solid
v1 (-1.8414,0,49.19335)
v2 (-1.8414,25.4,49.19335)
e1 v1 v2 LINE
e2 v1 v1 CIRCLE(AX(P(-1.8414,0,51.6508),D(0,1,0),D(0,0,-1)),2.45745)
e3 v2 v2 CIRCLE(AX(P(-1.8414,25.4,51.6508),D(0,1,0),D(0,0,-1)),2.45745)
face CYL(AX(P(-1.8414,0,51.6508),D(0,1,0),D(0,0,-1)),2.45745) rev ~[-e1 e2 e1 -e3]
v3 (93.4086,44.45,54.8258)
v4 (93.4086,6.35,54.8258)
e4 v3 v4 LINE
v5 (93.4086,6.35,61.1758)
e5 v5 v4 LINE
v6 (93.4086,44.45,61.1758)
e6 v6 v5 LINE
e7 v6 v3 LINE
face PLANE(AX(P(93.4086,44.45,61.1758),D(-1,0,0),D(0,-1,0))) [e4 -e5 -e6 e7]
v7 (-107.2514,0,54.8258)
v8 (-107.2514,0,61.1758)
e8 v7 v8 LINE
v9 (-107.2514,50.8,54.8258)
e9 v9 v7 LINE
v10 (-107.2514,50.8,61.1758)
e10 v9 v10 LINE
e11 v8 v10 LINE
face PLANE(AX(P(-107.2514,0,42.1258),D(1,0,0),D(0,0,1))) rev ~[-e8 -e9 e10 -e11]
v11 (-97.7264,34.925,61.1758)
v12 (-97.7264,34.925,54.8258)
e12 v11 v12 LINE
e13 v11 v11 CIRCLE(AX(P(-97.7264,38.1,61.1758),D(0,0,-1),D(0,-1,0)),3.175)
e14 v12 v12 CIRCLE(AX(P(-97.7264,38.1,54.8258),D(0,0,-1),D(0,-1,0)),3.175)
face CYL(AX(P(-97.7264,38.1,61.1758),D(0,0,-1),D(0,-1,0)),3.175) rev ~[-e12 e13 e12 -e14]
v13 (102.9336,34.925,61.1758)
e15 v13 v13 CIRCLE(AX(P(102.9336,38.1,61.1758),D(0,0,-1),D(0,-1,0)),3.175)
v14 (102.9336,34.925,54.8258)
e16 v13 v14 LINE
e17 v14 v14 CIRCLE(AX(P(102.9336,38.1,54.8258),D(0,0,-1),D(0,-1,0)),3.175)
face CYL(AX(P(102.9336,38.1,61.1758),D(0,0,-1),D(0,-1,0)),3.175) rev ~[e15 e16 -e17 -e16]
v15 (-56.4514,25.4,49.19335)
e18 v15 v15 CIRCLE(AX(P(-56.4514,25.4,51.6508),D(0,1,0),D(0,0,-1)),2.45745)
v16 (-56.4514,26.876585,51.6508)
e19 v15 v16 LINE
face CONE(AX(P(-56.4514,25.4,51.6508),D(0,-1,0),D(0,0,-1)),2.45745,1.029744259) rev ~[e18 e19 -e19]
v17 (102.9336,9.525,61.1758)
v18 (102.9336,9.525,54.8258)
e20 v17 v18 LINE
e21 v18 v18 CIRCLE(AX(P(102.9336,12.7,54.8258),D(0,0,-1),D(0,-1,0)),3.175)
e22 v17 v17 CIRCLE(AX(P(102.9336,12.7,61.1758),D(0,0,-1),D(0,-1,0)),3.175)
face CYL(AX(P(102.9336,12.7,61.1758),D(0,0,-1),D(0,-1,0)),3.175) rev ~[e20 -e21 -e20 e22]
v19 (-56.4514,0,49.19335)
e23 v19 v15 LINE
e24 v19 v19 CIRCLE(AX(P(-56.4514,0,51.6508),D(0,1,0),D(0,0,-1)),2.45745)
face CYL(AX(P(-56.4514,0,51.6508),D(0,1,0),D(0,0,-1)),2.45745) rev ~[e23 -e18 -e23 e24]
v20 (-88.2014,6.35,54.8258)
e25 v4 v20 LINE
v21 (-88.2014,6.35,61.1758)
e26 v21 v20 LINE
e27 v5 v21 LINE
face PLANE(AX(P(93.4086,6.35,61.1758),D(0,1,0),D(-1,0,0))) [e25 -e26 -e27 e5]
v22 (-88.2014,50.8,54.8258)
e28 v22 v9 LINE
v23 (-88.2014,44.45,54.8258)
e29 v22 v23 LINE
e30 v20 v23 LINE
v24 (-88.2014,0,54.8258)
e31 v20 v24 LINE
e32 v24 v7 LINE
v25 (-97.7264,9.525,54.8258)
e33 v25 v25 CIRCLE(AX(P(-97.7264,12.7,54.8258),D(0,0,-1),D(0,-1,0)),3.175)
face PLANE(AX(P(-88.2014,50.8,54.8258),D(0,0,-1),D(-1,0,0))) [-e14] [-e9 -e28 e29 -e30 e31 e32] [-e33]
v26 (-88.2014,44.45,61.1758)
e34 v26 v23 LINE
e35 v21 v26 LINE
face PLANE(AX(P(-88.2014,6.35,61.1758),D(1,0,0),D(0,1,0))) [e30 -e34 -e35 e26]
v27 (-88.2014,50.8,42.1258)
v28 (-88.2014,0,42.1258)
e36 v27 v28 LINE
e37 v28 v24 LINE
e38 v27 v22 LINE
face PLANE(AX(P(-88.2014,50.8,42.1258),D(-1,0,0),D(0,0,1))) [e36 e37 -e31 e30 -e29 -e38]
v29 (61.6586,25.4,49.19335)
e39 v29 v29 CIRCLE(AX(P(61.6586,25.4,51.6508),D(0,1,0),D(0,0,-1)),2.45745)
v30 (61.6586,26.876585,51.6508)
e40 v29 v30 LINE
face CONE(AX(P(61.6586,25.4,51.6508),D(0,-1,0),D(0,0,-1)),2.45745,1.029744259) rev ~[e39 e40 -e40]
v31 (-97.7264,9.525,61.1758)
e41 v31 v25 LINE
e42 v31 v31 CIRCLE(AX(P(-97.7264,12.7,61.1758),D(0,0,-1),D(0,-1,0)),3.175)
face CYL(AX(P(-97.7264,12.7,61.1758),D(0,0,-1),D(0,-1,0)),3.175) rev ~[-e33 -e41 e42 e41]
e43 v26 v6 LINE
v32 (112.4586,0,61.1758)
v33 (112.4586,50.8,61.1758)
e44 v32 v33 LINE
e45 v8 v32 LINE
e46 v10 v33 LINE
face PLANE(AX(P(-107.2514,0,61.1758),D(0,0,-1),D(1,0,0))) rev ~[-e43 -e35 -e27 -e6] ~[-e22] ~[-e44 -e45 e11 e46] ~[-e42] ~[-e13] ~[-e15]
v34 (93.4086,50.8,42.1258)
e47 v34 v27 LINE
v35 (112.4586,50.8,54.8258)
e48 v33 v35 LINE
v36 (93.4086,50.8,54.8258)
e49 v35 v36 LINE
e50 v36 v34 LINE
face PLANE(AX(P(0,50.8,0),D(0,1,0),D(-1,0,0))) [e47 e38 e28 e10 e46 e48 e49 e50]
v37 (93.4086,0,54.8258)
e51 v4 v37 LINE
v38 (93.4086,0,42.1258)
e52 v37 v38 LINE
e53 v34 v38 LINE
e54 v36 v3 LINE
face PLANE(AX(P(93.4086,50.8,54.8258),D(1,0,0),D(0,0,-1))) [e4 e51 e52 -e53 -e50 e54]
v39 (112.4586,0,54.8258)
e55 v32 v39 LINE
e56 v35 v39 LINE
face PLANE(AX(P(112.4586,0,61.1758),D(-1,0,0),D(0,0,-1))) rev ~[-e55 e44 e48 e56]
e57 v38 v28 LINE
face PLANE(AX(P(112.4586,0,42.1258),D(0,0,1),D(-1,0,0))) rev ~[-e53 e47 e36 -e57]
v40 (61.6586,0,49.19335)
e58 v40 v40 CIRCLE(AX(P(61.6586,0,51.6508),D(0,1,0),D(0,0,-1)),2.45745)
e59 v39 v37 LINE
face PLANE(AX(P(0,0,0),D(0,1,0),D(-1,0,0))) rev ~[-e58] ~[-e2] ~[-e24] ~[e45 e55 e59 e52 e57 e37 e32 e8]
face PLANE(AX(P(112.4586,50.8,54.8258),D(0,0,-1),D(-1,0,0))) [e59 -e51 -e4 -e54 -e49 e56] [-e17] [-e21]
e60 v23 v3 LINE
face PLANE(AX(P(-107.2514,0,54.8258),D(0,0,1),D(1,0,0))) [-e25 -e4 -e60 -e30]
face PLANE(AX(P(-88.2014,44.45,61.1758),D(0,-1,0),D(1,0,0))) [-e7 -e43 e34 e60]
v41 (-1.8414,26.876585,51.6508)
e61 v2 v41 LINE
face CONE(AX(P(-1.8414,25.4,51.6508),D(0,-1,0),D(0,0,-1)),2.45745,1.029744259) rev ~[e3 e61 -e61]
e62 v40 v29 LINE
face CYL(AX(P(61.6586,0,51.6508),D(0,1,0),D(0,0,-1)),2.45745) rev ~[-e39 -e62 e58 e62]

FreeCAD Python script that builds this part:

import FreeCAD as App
import Part
import Sketcher
Q = App.Units.Quantity

doc = App.newDocument("Part")
body = doc.addObject("PartDesign::Body", "Body")

sketch1 = doc.addObject("Sketcher::SketchObject", "Sketch")
body.addObject(sketch1)
sketch1.AttachmentSupport = (doc.XZ_Plane, [""])
sketch1.MapMode = "FlatFace"
sketch1.addGeometry(Part.LineSegment(App.Vector(-107, 42, 0), App.Vector(-107, 61, 0)), False)
sketch1.addGeometry(Part.LineSegment(App.Vector(-107, 61, 0), App.Vector(112, 61, 0)), False)
sketch1.addGeometry(Part.LineSegment(App.Vector(112, 61, 0), App.Vector(112, 42, 0)), False)
sketch1.addGeometry(Part.LineSegment(App.Vector(112, 42, 0), App.Vector(-107, 42, 0)), False)
sketch1.addConstraint(Sketcher.Constraint("Coincident", 0, 2, 1, 1))
sketch1.addConstraint(Sketcher.Constraint("Coincident", 1, 2, 2, 1))
sketch1.addConstraint(Sketcher.Constraint("Coincident", 2, 2, 3, 1))
sketch1.addConstraint(Sketcher.Constraint("Coincident", 3, 2, 0, 1))
sketch1.addConstraint(Sketcher.Constraint("Vertical", 0))
sketch1.addConstraint(Sketcher.Constraint("Horizontal", 1))
sketch1.addConstraint(Sketcher.Constraint("Vertical", 2))
sketch1.addConstraint(Sketcher.Constraint("Horizontal", 3))
sketch1.addConstraint(Sketcher.Constraint("DistanceX", 1, 1, 1, 2, Q("8.65 in")))
sketch1.addConstraint(Sketcher.Constraint("DistanceY", 0, 1, 0, 2, Q("0.75 in")))
sketch1.addConstraint(Sketcher.Constraint("DistanceX", 0, 2, -1, 1, Q("4.2225 in")))
sketch1.addConstraint(Sketcher.Constraint("DistanceY", -1, 1, 0, 2, Q("2.4085 in")))
pad1 = doc.addObject("PartDesign::Pad", "Pad")
body.addObject(pad1)
pad1.Profile = sketch1
pad1.Length = Q("2 in")
pad1.Reversed = True

sketch2 = doc.addObject("Sketcher::SketchObject", "Sketch001")
body.addObject(sketch2)
sketch2.AttachmentSupport = (doc.XY_Plane, [""])
sketch2.MapMode = "FlatFace"
sketch2.AttachmentOffset = App.Placement(App.Vector(0, 0, 2.4084961 * 25.4), App.Rotation())
sketch2.addGeometry(Part.Circle(App.Vector(-97.7, 38.1, 0), App.Vector(0, 0, 1), 3.2), False)
sketch2.addGeometry(Part.Circle(App.Vector(-97.7, 12.7, 0), App.Vector(0, 0, 1), 3.2), False)
sketch2.addGeometry(Part.Circle(App.Vector(102.9, 12.7, 0), App.Vector(0, 0, 1), 3.2), False)
sketch2.addGeometry(Part.Circle(App.Vector(102.9, 38.1, 0), App.Vector(0, 0, 1), 3.2), False)
sketch2.addConstraint(Sketcher.Constraint("Equal", 0, 1))
sketch2.addConstraint(Sketcher.Constraint("Equal", 1, 2))
sketch2.addConstraint(Sketcher.Constraint("Equal", 2, 3))
sketch2.addConstraint(Sketcher.Constraint("Horizontal", 1, 3, 2, 3))
sketch2.addConstraint(Sketcher.Constraint("Horizontal", 0, 3, 3, 3))
sketch2.addConstraint(Sketcher.Constraint("Vertical", 0, 3, 1, 3))
sketch2.addConstraint(Sketcher.Constraint("Vertical", 2, 3, 3, 3))
sketch2.addConstraint(Sketcher.Constraint("Diameter", 0, Q("0.25 in")))
sketch2.addConstraint(Sketcher.Constraint("DistanceY", 1, 3, 0, 3, Q("1 in")))
sketch2.addConstraint(Sketcher.Constraint("DistanceY", -1, 1, 0, 3, Q("1.5 in")))
sketch2.addConstraint(Sketcher.Constraint("DistanceX", 1, 3, 2, 3, Q("7.9 in")))
sketch2.addConstraint(Sketcher.Constraint("DistanceX", 0, 3, -1, 1, Q("3.8475 in")))
doc.recompute()
hole = doc.addObject("PartDesign::Hole", "Hole")
body.addObject(hole)
hole.Profile = sketch2
hole.ThreadType = "None"
hole.Diameter = Q("0.25 in")
hole.DepthType = "ThroughAll"

sketch3 = doc.addObject("Sketcher::SketchObject", "Sketch002")
body.addObject(sketch3)
sketch3.AttachmentSupport = (doc.XY_Plane, [""])
sketch3.MapMode = "FlatFace"
sketch3.AttachmentOffset = App.Placement(App.Vector(0, 0, 2.4084961 * 25.4), App.Rotation())
sketch3.addGeometry(Part.LineSegment(App.Vector(93, 44, 0), App.Vector(-88, 44, 0)), False)
sketch3.addGeometry(Part.LineSegment(App.Vector(-88, 44, 0), App.Vector(-88, 6, 0)), False)
sketch3.addGeometry(Part.LineSegment(App.Vector(-88, 6, 0), App.Vector(93, 6, 0)), False)
sketch3.addGeometry(Part.LineSegment(App.Vector(93, 6, 0), App.Vector(93, 44, 0)), False)
sketch3.addConstraint(Sketcher.Constraint("Coincident", 0, 2, 1, 1))
sketch3.addConstraint(Sketcher.Constraint("Coincident", 1, 2, 2, 1))
sketch3.addConstraint(Sketcher.Constraint("Coincident", 2, 2, 3, 1))
sketch3.addConstraint(Sketcher.Constraint("Coincident", 3, 2, 0, 1))
sketch3.addConstraint(Sketcher.Constraint("Horizontal", 0))
sketch3.addConstraint(Sketcher.Constraint("Vertical", 1))
sketch3.addConstraint(Sketcher.Constraint("Horizontal", 2))
sketch3.addConstraint(Sketcher.Constraint("Vertical", 3))
sketch3.addConstraint(Sketcher.Constraint("DistanceY", -1, 1, 1, 2, Q("0.25 in")))
sketch3.addConstraint(Sketcher.Constraint("DistanceY", 1, 2, 1, 1, Q("1.5 in")))
sketch3.addConstraint(Sketcher.Constraint("DistanceX", 0, 2, 0, 1, Q("7.15 in")))
sketch3.addConstraint(Sketcher.Constraint("DistanceX", 0, 2, -1, 1, Q("3.4725 in")))
pocket1 = doc.addObject("PartDesign::Pocket", "Pocket")
body.addObject(pocket1)
pocket1.Profile = sketch3
pocket1.Length = Q("0.25 in")

sketch4 = doc.addObject("Sketcher::SketchObject", "Sketch003")
body.addObject(sketch4)
sketch4.AttachmentSupport = (doc.XZ_Plane, [""])
sketch4.MapMode = "FlatFace"
sketch4.AttachmentOffset = App.Placement(App.Vector(0, 0, -2 * 25.4), App.Rotation())
sketch4.addGeometry(Part.LineSegment(App.Vector(-107, 55, 0), App.Vector(-88, 55, 0)), False)
sketch4.addGeometry(Part.LineSegment(App.Vector(-88, 55, 0), App.Vector(-88, 42, 0)), False)
sketch4.addGeometry(Part.LineSegment(App.Vector(-88, 42, 0), App.Vector(-107, 42, 0)), False)
sketch4.addGeometry(Part.LineSegment(App.Vector(-107, 42, 0), App.Vector(-107, 55, 0)), False)
sketch4.addGeometry(Part.LineSegment(App.Vector(112, 42, 0), App.Vector(93, 42, 0)), False)
sketch4.addGeometry(Part.LineSegment(App.Vector(93, 42, 0), App.Vector(93, 55, 0)), False)
sketch4.addGeometry(Part.LineSegment(App.Vector(93, 55, 0), App.Vector(112, 55, 0)), False)
sketch4.addGeometry(Part.LineSegment(App.Vector(112, 55, 0), App.Vector(112, 42, 0)), False)
sketch4.addConstraint(Sketcher.Constraint("Coincident", 0, 2, 1, 1))
sketch4.addConstraint(Sketcher.Constraint("Coincident", 1, 2, 2, 1))
sketch4.addConstraint(Sketcher.Constraint("Coincident", 2, 2, 3, 1))
sketch4.addConstraint(Sketcher.Constraint("Coincident", 3, 2, 0, 1))
sketch4.addConstraint(Sketcher.Constraint("Coincident", 4, 2, 5, 1))
sketch4.addConstraint(Sketcher.Constraint("Coincident", 5, 2, 6, 1))
sketch4.addConstraint(Sketcher.Constraint("Coincident", 6, 2, 7, 1))
sketch4.addConstraint(Sketcher.Constraint("Coincident", 7, 2, 4, 1))
sketch4.addConstraint(Sketcher.Constraint("Horizontal", 0))
sketch4.addConstraint(Sketcher.Constraint("Vertical", 1))
sketch4.addConstraint(Sketcher.Constraint("Horizontal", 2))
sketch4.addConstraint(Sketcher.Constraint("Vertical", 3))
sketch4.addConstraint(Sketcher.Constraint("Horizontal", 4))
sketch4.addConstraint(Sketcher.Constraint("Vertical", 5))
sketch4.addConstraint(Sketcher.Constraint("Horizontal", 6))
sketch4.addConstraint(Sketcher.Constraint("Vertical", 7))
sketch4.addConstraint(Sketcher.Constraint("Horizontal", 2, 2, 4, 2))
sketch4.addConstraint(Sketcher.Constraint("Horizontal", 3, 2, 5, 2))
sketch4.addConstraint(Sketcher.Constraint("Equal", 2, 4))
sketch4.addConstraint(Sketcher.Constraint("DistanceY", 1, 2, 1, 1, Q("0.5 in")))
sketch4.addConstraint(Sketcher.Constraint("DistanceX", 0, 1, 0, 2, Q("0.75 in")))
sketch4.addConstraint(Sketcher.Constraint("DistanceX", 2, 2, 4, 2, Q("7.9 in")))
sketch4.addConstraint(Sketcher.Constraint("DistanceX", 0, 2, -1, 1, Q("3.4725 in")))
sketch4.addConstraint(Sketcher.Constraint("DistanceY", -1, 1, 0, 2, Q("2.1585 in")))
pocket2 = doc.addObject("PartDesign::Pocket", "Pocket001")
body.addObject(pocket2)
pocket2.Profile = sketch4
pocket2.Length = Q("3 in")
pocket2.Reversed = True

sketch5 = doc.addObject("Sketcher::SketchObject", "Sketch004")
body.addObject(sketch5)
sketch5.AttachmentSupport = (doc.XZ_Plane, [""])
sketch5.MapMode = "FlatFace"
sketch5.addGeometry(Part.Circle(App.Vector(61.7, 51.7, 0), App.Vector(0, 0, 1), 2.5), False)
sketch5.addGeometry(Part.Circle(App.Vector(-56.5, 51.7, 0), App.Vector(0, 0, 1), 2.5), False)
sketch5.addConstraint(Sketcher.Constraint("Equal", 0, 1))
sketch5.addConstraint(Sketcher.Constraint("Horizontal", 0, 3, 1, 3))
sketch5.addConstraint(Sketcher.Constraint("Diameter", 0, Q("0.1935 in")))
sketch5.addConstraint(Sketcher.Constraint("DistanceX", 1, 3, 0, 3, Q("4.65 in")))
sketch5.addConstraint(Sketcher.Constraint("DistanceX", -1, 1, 0, 3, Q("2.4275 in")))
sketch5.addConstraint(Sketcher.Constraint("DistanceY", -1, 1, 0, 3, Q("2.0335 in")))
doc.recompute()
hole2 = doc.addObject("PartDesign::Hole", "Hole001")
body.addObject(hole2)
hole2.Profile = sketch5
hole2.ThreadType = "None"
hole2.Diameter = Q("0.1935 in")
hole2.DepthType = "Dimension"
hole2.Depth = Q("1 in")
hole2.DrillPoint = "Angled"
hole2.DrillPointAngle = 118

sketch6 = doc.addObject("Sketcher::SketchObject", "Sketch005")
body.addObject(sketch6)
sketch6.AttachmentSupport = (doc.XZ_Plane, [""])
sketch6.MapMode = "FlatFace"
sketch6.addGeometry(Part.Circle(App.Vector(-1.8, 51.7, 0), App.Vector(0, 0, 1), 2.5), False)
sketch6.addConstraint(Sketcher.Constraint("Diameter", 0, Q("0.1935 in")))
sketch6.addConstraint(Sketcher.Constraint("DistanceX", 0, 3, -1, 1, Q("0.0725 in")))
sketch6.addConstraint(Sketcher.Constraint("DistanceY", -1, 1, 0, 3, Q("2.0335 in")))
doc.recompute()
hole3 = doc.addObject("PartDesign::Hole", "Hole002")
body.addObject(hole3)
hole3.Profile = sketch6
hole3.ThreadType = "None"
hole3.Diameter = Q("0.1935 in")
hole3.DepthType = "Dimension"
hole3.Depth = Q("1 in")
hole3.DrillPoint = "Angled"
hole3.DrillPointAngle = 118

doc.recompute()
